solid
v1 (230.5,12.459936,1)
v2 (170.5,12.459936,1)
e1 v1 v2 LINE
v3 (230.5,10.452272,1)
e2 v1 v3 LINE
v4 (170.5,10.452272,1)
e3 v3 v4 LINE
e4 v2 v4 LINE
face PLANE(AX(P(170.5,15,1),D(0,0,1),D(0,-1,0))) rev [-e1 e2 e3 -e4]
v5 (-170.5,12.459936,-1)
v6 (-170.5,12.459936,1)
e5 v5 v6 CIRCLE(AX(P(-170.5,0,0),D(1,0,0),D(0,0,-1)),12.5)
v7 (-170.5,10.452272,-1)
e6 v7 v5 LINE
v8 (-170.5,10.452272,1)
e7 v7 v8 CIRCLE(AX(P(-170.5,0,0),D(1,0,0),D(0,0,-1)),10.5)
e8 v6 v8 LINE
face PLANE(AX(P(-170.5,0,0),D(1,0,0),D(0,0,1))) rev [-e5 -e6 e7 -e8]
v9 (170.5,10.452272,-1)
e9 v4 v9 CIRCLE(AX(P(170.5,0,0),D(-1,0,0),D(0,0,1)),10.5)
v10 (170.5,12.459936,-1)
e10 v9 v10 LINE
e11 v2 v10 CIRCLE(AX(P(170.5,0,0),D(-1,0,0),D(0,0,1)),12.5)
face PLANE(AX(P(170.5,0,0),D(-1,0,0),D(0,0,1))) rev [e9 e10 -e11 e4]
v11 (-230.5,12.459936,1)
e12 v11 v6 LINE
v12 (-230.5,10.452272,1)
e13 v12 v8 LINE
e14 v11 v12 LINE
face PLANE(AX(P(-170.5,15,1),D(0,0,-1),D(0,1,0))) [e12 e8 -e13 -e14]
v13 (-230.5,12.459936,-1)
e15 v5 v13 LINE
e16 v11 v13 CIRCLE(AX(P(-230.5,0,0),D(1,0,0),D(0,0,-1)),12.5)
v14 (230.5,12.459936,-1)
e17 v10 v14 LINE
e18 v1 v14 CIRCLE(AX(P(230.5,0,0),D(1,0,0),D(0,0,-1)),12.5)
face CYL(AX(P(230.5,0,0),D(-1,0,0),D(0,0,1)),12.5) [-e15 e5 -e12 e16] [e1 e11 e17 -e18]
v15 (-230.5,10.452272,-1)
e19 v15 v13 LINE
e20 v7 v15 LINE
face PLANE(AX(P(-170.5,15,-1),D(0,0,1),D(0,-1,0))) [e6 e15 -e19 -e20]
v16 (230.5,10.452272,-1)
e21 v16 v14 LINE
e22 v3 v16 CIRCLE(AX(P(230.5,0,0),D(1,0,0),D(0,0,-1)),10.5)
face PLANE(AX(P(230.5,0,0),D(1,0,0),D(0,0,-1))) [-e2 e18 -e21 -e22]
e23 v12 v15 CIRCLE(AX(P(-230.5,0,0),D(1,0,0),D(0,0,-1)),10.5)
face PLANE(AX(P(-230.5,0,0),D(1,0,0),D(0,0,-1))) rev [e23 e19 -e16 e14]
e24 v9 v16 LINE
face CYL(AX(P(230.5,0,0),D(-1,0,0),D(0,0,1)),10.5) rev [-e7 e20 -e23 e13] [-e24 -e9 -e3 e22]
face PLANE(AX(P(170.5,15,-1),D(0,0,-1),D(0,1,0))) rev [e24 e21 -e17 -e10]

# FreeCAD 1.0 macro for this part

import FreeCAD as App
import Part
import Sketcher
from FreeCAD import Vector

doc = App.newDocument("Part")
params = doc.addObject("Spreadsheet::Sheet", "Params")
for row, (alias, value) in enumerate([
    ("sketch1_diameter", "25 mm"),
    ("sketch1_diameter2", "21 mm"),
    ("pad1_length", "461 mm"),
    ("sketch2_width", "5 mm"),
    ("sketch2_height", "2 mm"),
    ("pocket1_length", "60 mm"),
], start=1):
    params.set(f"A{row}", alias)
    params.set(f"B{row}", "=" + value)
    params.setAlias(f"B{row}", alias)

body = doc.addObject("PartDesign::Body", "Body")

sketch1 = body.newObject("Sketcher::SketchObject", "Sketch")
sketch1.AttachmentSupport = (doc.getObject("YZ_Plane"), [""])
sketch1.MapMode = "FlatFace"
sketch1.addGeometry([
    Part.Circle(Vector(0, 0, 0), Vector(0, 0, 1), 12),
    Part.Circle(Vector(0, 0, 0), Vector(0, 0, 1), 10),
], False)
sketch1.addConstraint([
    Sketcher.Constraint("Coincident", 0, 3, -1, 1),
    Sketcher.Constraint("Coincident", 1, 3, -1, 1),
    Sketcher.Constraint("Diameter", 0, 25.0),
    Sketcher.Constraint("Diameter", 1, 21.0),
])
sketch1.setExpression("Constraints[2]", "Params.sketch1_diameter")
sketch1.setExpression("Constraints[3]", "Params.sketch1_diameter2")
pad1 = body.newObject("PartDesign::Pad", "Pad")
pad1.Profile = sketch1
pad1.setExpression("Length", "Params.pad1_length")
pad1.Midplane = True

sketch2 = body.newObject("Sketcher::SketchObject", "Sketch001")
sketch2.AttachmentSupport = (doc.getObject("YZ_Plane"), [""])
sketch2.MapMode = "FlatFace"
sketch2.AttachmentOffset = App.Placement(Vector(0, 0, 230.5), App.Rotation())
sketch2.addGeometry([
    Part.LineSegment(Vector(15, 1, 0), Vector(10, 1, 0)),
    Part.LineSegment(Vector(10, 1, 0), Vector(10, -1, 0)),
    Part.LineSegment(Vector(10, -1, 0), Vector(15, -1, 0)),
    Part.LineSegment(Vector(15, -1, 0), Vector(15, 1, 0)),
], False)
sketch2.addConstraint([
    Sketcher.Constraint("Coincident", 0, 2, 1, 1),
    Sketcher.Constraint("Coincident", 1, 2, 2, 1),
    Sketcher.Constraint("Coincident", 2, 2, 3, 1),
    Sketcher.Constraint("Coincident", 3, 2, 0, 1),
    Sketcher.Constraint("Horizontal", 0),
    Sketcher.Constraint("Vertical", 1),
    Sketcher.Constraint("Horizontal", 2),
    Sketcher.Constraint("Vertical", 3),
    Sketcher.Constraint("DistanceX", 0, 2, 0, 1, 5.0),
    Sketcher.Constraint("DistanceY", 1, 2, 1, 1, 2.0),
    Sketcher.Constraint("DistanceX", -1, 1, 0, 2, 10.0),
    Sketcher.Constraint("DistanceY", -1, 1, 0, 2, 1.0),
])
sketch2.setExpression("Constraints[8]", "Params.sketch2_width")
sketch2.setExpression("Constraints[9]", "Params.sketch2_height")
pocket1 = body.newObject("PartDesign::Pocket", "Pocket")
pocket1.Profile = sketch2
pocket1.setExpression("Length", "Params.pocket1_length")
doc.recompute()

mirrored = body.newObject("PartDesign::Mirrored", "Mirrored")
mirrored.Originals = [pocket1]
mirrored.MirrorPlane = (doc.getObject("YZ_Plane"), [""])
body.Tip = mirrored

doc.recompute()
